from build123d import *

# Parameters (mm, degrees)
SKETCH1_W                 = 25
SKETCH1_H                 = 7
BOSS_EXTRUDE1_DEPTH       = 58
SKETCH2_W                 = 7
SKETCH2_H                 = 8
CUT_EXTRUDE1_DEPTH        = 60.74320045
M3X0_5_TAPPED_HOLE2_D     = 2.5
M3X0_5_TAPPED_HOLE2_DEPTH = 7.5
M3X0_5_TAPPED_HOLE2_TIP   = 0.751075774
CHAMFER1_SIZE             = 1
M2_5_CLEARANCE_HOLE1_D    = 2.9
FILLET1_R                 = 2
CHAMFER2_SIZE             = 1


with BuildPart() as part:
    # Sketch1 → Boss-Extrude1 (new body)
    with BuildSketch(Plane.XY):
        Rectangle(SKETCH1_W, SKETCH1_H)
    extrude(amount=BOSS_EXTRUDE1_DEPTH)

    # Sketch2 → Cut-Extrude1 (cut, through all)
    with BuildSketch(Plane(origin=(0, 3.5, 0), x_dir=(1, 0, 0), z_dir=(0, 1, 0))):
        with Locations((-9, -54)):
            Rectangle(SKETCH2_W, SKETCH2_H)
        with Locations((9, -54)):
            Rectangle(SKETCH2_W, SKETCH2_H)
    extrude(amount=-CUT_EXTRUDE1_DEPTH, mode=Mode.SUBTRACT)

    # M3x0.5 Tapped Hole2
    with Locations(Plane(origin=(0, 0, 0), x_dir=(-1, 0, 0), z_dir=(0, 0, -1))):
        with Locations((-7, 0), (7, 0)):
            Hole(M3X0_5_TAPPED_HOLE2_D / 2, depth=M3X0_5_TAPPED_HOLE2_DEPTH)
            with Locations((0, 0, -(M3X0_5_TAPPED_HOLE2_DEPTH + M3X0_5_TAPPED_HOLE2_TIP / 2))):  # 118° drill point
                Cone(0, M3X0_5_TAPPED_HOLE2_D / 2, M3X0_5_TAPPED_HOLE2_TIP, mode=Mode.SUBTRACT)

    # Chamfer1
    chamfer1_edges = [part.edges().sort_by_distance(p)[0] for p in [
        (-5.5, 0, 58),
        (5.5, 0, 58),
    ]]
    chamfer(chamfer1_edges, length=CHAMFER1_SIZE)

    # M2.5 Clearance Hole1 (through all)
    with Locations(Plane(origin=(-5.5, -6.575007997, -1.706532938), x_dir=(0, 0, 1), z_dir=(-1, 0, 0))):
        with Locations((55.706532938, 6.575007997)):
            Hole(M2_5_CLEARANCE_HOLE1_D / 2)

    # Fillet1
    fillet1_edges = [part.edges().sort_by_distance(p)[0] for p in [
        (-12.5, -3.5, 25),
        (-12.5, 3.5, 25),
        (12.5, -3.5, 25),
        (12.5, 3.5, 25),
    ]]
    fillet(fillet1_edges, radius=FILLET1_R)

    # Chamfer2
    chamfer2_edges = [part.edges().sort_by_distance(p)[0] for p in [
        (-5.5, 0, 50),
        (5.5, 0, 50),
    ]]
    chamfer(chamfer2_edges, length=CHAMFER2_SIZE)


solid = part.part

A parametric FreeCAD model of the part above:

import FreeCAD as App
import Part
import Sketcher


def edges_at(feature, points):
    """Names of the edges that pass closest to the given points."""
    edges = feature.Shape.Edges
    near = lambda p: min(range(len(edges)), key=lambda i: edges[i].distToShape(Part.Vertex(*p))[0])
    return sorted({f"Edge{near(p) + 1}" for p in points})

doc = App.newDocument("Part")
params = doc.addObject("Spreadsheet::Sheet", "Params")
for row, (alias, value) in enumerate([
    ("sketch1_width", "25 mm"),
    ("sketch1_height", "7 mm"),
    ("pad1_length", "58 mm"),
    ("sketch2_width", "7 mm"),
    ("sketch2_height", "8 mm"),
    ("sketch3_diameter", "2.5 mm"),
    ("hole_diameter", "2.5 mm"),
    ("hole_depth", "7.5 mm"),
    ("chamfer_size", "1 mm"),
    ("sketch4_diameter", "2.9 mm"),
    ("hole2_diameter", "2.9 mm"),
    ("fillet_radius", "2 mm"),
    ("chamfer2_size", "1 mm"),
], start=1):
    params.set(f"A{row}", alias)
    params.set(f"B{row}", "=" + value)
    params.setAlias(f"B{row}", alias)

body = doc.addObject("PartDesign::Body", "Body")

sketch1 = body.newObject("Sketcher::SketchObject", "Sketch")
sketch1.AttachmentSupport = (doc.getObject("XY_Plane"), [""])
sketch1.MapMode = "FlatFace"
sketch1.addGeometry(Part.LineSegment(App.Vector(-12, 4, 0), App.Vector(-12, -4, 0)), False)
sketch1.addGeometry(Part.LineSegment(App.Vector(-12, -4, 0), App.Vector(12, -4, 0)), False)
sketch1.addGeometry(Part.LineSegment(App.Vector(12, -4, 0), App.Vector(12, 4, 0)), False)
sketch1.addGeometry(Part.LineSegment(App.Vector(12, 4, 0), App.Vector(-12, 4, 0)), False)
sketch1.addConstraint(Sketcher.Constraint("Coincident", 0, 2, 1, 1))
sketch1.addConstraint(Sketcher.Constraint("Coincident", 1, 2, 2, 1))
sketch1.addConstraint(Sketcher.Constraint("Coincident", 2, 2, 3, 1))
sketch1.addConstraint(Sketcher.Constraint("Coincident", 3, 2, 0, 1))
sketch1.addConstraint(Sketcher.Constraint("Vertical", 0))
sketch1.addConstraint(Sketcher.Constraint("Horizontal", 1))
sketch1.addConstraint(Sketcher.Constraint("Vertical", 2))
sketch1.addConstraint(Sketcher.Constraint("Horizontal", 3))
sketch1.addConstraint(Sketcher.Constraint("Symmetric", 0, 2, 2, 2, -1, 1))
sketch1.addConstraint(Sketcher.Constraint("DistanceX", 1, 1, 1, 2, 25.0))
sketch1.addConstraint(Sketcher.Constraint("DistanceY", 0, 2, 0, 1, 7.0))
sketch1.setExpression("Constraints[9]", "Params.sketch1_width")
sketch1.setExpression("Constraints[10]", "Params.sketch1_height")
pad1 = body.newObject("PartDesign::Pad", "Pad")
pad1.Profile = sketch1
pad1.setExpression("Length", "Params.pad1_length")

sketch2 = body.newObject("Sketcher::SketchObject", "Sketch001")
sketch2.AttachmentSupport = (doc.getObject("XZ_Plane"), [""])
sketch2.MapMode = "FlatFace"
sketch2.AttachmentOffset = App.Placement(App.Vector(0, 0, -3.5), App.Rotation())
sketch2.addGeometry(Part.LineSegment(App.Vector(-12, 50, 0), App.Vector(-12, 58, 0)), False)
sketch2.addGeometry(Part.LineSegment(App.Vector(-12, 58, 0), App.Vector(-6, 58, 0)), False)
sketch2.addGeometry(Part.LineSegment(App.Vector(-6, 58, 0), App.Vector(-6, 50, 0)), False)
sketch2.addGeometry(Part.LineSegment(App.Vector(-6, 50, 0), App.Vector(-12, 50, 0)), False)
sketch2.addGeometry(Part.LineSegment(App.Vector(6, 50, 0), App.Vector(6, 58, 0)), False)
sketch2.addGeometry(Part.LineSegment(App.Vector(6, 58, 0), App.Vector(12, 58, 0)), False)
sketch2.addGeometry(Part.LineSegment(App.Vector(12, 58, 0), App.Vector(12, 50, 0)), False)
sketch2.addGeometry(Part.LineSegment(App.Vector(12, 50, 0), App.Vector(6, 50, 0)), False)
sketch2.addConstraint(Sketcher.Constraint("Coincident", 0, 2, 1, 1))
sketch2.addConstraint(Sketcher.Constraint("Coincident", 1, 2, 2, 1))
sketch2.addConstraint(Sketcher.Constraint("Coincident", 2, 2, 3, 1))
sketch2.addConstraint(Sketcher.Constraint("Coincident", 3, 2, 0, 1))
sketch2.addConstraint(Sketcher.Constraint("Coincident", 4, 2, 5, 1))
sketch2.addConstraint(Sketcher.Constraint("Coincident", 5, 2, 6, 1))
sketch2.addConstraint(Sketcher.Constraint("Coincident", 6, 2, 7, 1))
sketch2.addConstraint(Sketcher.Constraint("Coincident", 7, 2, 4, 1))
sketch2.addConstraint(Sketcher.Constraint("Vertical", 0))
sketch2.addConstraint(Sketcher.Constraint("Horizontal", 1))
sketch2.addConstraint(Sketcher.Constraint("Vertical", 2))
sketch2.addConstraint(Sketcher.Constraint("Horizontal", 3))
sketch2.addConstraint(Sketcher.Constraint("Vertical", 4))
sketch2.addConstraint(Sketcher.Constraint("Horizontal", 5))
sketch2.addConstraint(Sketcher.Constraint("Vertical", 6))
sketch2.addConstraint(Sketcher.Constraint("Horizontal", 7))
sketch2.addConstraint(Sketcher.Constraint("Symmetric", 1, 2, 4, 2, -2))
sketch2.addConstraint(Sketcher.Constraint("Symmetric", 3, 2, 6, 2, -2))
sketch2.addConstraint(Sketcher.Constraint("DistanceX", 1, 1, 1, 2, 7.0))
sketch2.addConstraint(Sketcher.Constraint("DistanceY", 0, 1, 0, 2, 8.0))
sketch2.addConstraint(Sketcher.Constraint("DistanceY", -1, 1, 0, 2, 58.0))
sketch2.addConstraint(Sketcher.Constraint("DistanceX", 1, 2, 4, 2, 11.0))
sketch2.setExpression("Constraints[18]", "Params.sketch2_width")
sketch2.setExpression("Constraints[19]", "Params.sketch2_height")
pocket1 = body.newObject("PartDesign::Pocket", "Pocket")
pocket1.Profile = sketch2
pocket1.Type = "ThroughAll"
pocket1.Reversed = True

sketch3 = body.newObject("Sketcher::SketchObject", "Sketch002")
sketch3.AttachmentSupport = (doc.getObject("XY_Plane"), [""])
sketch3.MapMode = "FlatFace"
sketch3.addGeometry(Part.Circle(App.Vector(7, 0, 0), App.Vector(0, 0, 1), 1.2), False)
sketch3.addGeometry(Part.Circle(App.Vector(-7, 0, 0), App.Vector(0, 0, 1), 1.2), False)
sketch3.addConstraint(Sketcher.Constraint("Equal", 0, 1))
sketch3.addConstraint(Sketcher.Constraint("Symmetric", 0, 3, 1, 3, -1, 1))
sketch3.addConstraint(Sketcher.Constraint("PointOnObject", 0, 3, -1))
sketch3.addConstraint(Sketcher.Constraint("Diameter", 0, 2.5))
sketch3.addConstraint(Sketcher.Constraint("DistanceX", -1, 1, 0, 3, 7.0))
sketch3.setExpression("Constraints[3]", "Params.sketch3_diameter")
doc.recompute()
hole = body.newObject("PartDesign::Hole", "Hole")
hole.Profile = sketch3
hole.ThreadType = "None"
hole.setExpression("Diameter", "Params.hole_diameter")
hole.DepthType = "Dimension"
hole.setExpression("Depth", "Params.hole_depth")
hole.DrillPoint = "Angled"
hole.DrillPointAngle = 118
hole.Reversed = True
doc.recompute()

chamfer = body.newObject("PartDesign::Chamfer", "Chamfer")
chamfer.Base = (hole, edges_at(hole, [(-5.5, 0, 58), (5.5, 0, 58)]))
chamfer.setExpression("Size", "Params.chamfer_size")

sketch4 = body.newObject("Sketcher::SketchObject", "Sketch003")
sketch4.AttachmentSupport = (doc.getObject("YZ_Plane"), [""])
sketch4.MapMode = "FlatFace"
sketch4.AttachmentOffset = App.Placement(App.Vector(0, 0, -5.5), App.Rotation())
sketch4.addGeometry(Part.Circle(App.Vector(0, 54, 0), App.Vector(0, 0, 1), 1.4), False)
sketch4.addConstraint(Sketcher.Constraint("PointOnObject", 0, 3, -2))
sketch4.addConstraint(Sketcher.Constraint("Diameter", 0, 2.9))
sketch4.addConstraint(Sketcher.Constraint("DistanceY", -1, 1, 0, 3, 54.0))
sketch4.setExpression("Constraints[1]", "Params.sketch4_diameter")
doc.recompute()
hole2 = body.newObject("PartDesign::Hole", "Hole001")
hole2.Profile = sketch4
hole2.ThreadType = "None"
hole2.setExpression("Diameter", "Params.hole2_diameter")
hole2.DepthType = "ThroughAll"
hole2.Reversed = True
doc.recompute()

fillet = body.newObject("PartDesign::Fillet", "Fillet")
fillet.Base = (hole2, edges_at(hole2, [
    (-12.5, -3.5, 25),
    (-12.5, 3.5, 25),
    (12.5, -3.5, 25),
    (12.5, 3.5, 25),
]))
fillet.setExpression("Radius", "Params.fillet_radius")
doc.recompute()

chamfer2 = body.newObject("PartDesign::Chamfer", "Chamfer001")
chamfer2.Base = (fillet, edges_at(fillet, [(-5.5, 0, 50), (5.5, 0, 50)]))
chamfer2.setExpression("Size", "Params.chamfer2_size")

doc.recompute()
